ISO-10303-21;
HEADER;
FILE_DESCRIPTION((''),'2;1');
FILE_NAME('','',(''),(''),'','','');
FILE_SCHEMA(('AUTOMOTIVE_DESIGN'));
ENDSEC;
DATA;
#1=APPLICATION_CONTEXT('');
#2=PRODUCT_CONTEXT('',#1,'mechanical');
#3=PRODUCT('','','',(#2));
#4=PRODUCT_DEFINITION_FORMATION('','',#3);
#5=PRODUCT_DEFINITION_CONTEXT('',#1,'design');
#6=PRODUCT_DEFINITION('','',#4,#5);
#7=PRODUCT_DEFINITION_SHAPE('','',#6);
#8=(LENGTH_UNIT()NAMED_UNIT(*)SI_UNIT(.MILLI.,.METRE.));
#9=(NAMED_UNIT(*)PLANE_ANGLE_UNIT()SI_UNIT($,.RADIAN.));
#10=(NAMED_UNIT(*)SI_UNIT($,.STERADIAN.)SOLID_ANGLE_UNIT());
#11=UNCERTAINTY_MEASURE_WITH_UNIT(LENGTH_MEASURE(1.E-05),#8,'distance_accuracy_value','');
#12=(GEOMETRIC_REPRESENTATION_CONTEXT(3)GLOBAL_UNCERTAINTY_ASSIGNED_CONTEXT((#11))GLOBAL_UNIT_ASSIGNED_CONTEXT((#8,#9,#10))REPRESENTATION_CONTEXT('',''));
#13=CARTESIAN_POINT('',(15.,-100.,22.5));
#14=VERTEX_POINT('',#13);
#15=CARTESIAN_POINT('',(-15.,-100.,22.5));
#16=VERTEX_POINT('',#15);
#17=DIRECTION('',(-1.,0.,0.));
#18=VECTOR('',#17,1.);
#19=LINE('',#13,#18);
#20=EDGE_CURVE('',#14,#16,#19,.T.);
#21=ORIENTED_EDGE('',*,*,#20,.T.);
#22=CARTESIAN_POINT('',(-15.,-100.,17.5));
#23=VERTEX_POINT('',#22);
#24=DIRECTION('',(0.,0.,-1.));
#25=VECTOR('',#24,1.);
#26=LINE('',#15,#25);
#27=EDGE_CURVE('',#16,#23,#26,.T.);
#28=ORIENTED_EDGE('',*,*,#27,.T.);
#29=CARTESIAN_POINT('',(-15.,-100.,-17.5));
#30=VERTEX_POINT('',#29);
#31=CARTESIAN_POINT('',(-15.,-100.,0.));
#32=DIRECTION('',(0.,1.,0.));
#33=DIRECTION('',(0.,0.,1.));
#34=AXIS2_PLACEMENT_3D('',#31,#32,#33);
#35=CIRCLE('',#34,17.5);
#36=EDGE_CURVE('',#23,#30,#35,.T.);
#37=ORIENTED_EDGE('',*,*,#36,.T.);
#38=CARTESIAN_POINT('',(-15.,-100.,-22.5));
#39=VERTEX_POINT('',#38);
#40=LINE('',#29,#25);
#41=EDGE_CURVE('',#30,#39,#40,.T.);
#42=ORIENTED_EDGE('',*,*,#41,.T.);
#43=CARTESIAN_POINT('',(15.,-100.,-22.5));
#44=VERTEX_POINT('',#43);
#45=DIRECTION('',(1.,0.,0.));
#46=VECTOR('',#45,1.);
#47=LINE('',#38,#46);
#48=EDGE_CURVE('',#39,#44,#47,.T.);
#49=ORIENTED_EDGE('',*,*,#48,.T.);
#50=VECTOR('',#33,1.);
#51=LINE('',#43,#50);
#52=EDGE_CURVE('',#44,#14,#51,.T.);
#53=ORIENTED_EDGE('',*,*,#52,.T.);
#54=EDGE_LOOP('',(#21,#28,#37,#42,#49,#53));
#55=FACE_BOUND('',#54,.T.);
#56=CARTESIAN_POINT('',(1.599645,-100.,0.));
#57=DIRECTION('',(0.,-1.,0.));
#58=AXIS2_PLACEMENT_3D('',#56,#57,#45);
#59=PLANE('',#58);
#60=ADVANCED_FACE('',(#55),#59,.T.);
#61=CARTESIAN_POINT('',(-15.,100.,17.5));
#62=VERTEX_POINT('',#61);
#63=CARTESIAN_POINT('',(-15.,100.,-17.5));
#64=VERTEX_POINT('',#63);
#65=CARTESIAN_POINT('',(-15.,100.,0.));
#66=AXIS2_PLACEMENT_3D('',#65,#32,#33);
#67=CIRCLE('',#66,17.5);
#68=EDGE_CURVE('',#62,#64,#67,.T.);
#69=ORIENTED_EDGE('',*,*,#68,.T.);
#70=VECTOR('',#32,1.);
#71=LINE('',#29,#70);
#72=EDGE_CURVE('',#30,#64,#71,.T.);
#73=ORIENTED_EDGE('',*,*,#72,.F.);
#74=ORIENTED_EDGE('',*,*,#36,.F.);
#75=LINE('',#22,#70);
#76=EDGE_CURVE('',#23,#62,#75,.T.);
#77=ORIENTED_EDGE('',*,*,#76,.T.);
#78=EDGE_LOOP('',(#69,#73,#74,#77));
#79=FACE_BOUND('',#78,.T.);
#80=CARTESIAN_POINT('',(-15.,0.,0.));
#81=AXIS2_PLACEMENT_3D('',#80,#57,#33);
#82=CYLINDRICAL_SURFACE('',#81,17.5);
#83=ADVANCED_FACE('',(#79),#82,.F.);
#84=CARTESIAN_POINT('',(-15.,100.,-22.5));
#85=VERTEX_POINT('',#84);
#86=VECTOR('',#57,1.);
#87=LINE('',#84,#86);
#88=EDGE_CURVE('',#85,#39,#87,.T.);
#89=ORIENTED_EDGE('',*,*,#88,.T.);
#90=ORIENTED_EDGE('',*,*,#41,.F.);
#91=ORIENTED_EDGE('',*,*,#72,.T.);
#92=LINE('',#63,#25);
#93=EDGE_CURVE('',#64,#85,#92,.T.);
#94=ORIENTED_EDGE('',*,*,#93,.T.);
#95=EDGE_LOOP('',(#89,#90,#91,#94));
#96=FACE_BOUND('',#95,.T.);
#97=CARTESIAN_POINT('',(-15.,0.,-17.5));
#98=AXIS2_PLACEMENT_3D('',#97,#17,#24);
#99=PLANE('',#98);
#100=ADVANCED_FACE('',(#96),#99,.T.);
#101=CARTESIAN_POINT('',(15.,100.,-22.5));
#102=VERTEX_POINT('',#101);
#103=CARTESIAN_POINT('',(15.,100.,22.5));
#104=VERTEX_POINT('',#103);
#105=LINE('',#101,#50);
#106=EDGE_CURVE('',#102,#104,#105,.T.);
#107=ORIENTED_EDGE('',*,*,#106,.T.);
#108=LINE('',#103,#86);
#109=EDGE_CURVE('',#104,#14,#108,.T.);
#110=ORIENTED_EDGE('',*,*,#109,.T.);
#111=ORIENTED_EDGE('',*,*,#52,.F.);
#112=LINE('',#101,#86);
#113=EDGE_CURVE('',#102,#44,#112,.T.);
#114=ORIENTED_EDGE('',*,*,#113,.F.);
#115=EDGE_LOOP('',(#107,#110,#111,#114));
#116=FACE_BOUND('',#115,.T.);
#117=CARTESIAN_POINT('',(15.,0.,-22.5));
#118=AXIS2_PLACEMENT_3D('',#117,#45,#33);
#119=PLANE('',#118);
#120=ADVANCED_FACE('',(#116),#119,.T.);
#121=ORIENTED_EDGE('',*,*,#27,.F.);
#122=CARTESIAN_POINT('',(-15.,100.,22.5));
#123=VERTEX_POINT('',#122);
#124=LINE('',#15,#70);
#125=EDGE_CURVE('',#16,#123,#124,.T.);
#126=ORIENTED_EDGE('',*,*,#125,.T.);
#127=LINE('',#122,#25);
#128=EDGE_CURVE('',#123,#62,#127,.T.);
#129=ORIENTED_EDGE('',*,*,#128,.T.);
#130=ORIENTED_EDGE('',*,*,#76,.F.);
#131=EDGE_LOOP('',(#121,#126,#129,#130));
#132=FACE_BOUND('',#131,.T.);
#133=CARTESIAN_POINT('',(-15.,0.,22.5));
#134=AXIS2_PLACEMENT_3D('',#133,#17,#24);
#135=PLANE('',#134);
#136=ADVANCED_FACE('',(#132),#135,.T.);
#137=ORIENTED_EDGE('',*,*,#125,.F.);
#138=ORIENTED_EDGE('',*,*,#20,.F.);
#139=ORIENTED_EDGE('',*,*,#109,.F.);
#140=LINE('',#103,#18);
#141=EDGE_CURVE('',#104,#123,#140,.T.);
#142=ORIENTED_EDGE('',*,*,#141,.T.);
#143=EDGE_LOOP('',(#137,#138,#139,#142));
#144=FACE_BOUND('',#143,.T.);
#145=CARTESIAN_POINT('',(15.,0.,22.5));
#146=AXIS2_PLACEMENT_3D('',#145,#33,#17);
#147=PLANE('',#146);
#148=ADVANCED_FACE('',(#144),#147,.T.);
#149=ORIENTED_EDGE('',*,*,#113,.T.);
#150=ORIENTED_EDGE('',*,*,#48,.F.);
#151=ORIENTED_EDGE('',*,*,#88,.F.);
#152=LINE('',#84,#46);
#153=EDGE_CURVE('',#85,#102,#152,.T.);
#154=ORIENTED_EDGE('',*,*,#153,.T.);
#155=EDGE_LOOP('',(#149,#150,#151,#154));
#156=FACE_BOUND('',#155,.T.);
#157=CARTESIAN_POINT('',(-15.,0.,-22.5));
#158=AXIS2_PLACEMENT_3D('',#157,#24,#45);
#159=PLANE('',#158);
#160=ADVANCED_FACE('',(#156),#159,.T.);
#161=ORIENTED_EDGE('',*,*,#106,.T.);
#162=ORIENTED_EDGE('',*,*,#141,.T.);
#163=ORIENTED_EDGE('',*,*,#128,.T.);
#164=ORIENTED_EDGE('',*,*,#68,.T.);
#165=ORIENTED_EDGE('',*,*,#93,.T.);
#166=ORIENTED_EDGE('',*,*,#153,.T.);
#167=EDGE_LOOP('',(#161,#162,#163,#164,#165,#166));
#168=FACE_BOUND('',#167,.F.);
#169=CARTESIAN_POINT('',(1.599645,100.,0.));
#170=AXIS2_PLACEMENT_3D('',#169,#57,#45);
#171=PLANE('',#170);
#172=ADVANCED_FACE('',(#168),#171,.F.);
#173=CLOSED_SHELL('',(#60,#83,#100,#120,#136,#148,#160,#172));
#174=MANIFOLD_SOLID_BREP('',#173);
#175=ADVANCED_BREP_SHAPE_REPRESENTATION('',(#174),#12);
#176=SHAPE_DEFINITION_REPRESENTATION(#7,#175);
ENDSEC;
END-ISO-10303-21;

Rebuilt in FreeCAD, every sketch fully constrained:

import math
import FreeCAD as App
import Part
import Sketcher
from FreeCAD import Vector

doc = App.newDocument("Part")
body = doc.addObject("PartDesign::Body", "Body")

sketch1 = doc.addObject("Sketcher::SketchObject", "Sketch")
body.addObject(sketch1)
sketch1.AttachmentSupport = (doc.XZ_Plane, [""])
sketch1.MapMode = "FlatFace"
sketch1.addGeometry(Part.LineSegment(Vector(-15, -18, 0), Vector(-15, -22, 0)), False)
sketch1.addGeometry(Part.LineSegment(Vector(-15, -22, 0), Vector(15, -22, 0)), False)
sketch1.addGeometry(Part.LineSegment(Vector(15, -22, 0), Vector(15, 22, 0)), False)
sketch1.addGeometry(Part.LineSegment(Vector(15, 22, 0), Vector(-15, 22, 0)), False)
sketch1.addGeometry(Part.LineSegment(Vector(-15, 22, 0), Vector(-15, 18, 0)), False)
sketch1.addGeometry(Part.ArcOfCircle(Part.Circle(Vector(-15, 0, 0), Vector(0, 0, 1), 18), math.radians(-90), math.radians(90)), False)
sketch1.addConstraint(Sketcher.Constraint("Coincident", 0, 2, 1, 1))
sketch1.addConstraint(Sketcher.Constraint("Coincident", 1, 2, 2, 1))
sketch1.addConstraint(Sketcher.Constraint("Coincident", 2, 2, 3, 1))
sketch1.addConstraint(Sketcher.Constraint("Coincident", 3, 2, 4, 1))
sketch1.addConstraint(Sketcher.Constraint("Coincident", 4, 2, 5, 2))
sketch1.addConstraint(Sketcher.Constraint("Coincident", 5, 1, 0, 1))
sketch1.addConstraint(Sketcher.Constraint("Vertical", 0))
sketch1.addConstraint(Sketcher.Constraint("Horizontal", 1))
sketch1.addConstraint(Sketcher.Constraint("Vertical", 2))
sketch1.addConstraint(Sketcher.Constraint("Horizontal", 3))
sketch1.addConstraint(Sketcher.Constraint("Vertical", 4))
sketch1.addConstraint(Sketcher.Constraint("Symmetric", 0, 2, 2, 2, -1, 1))
sketch1.addConstraint(Sketcher.Constraint("Symmetric", 4, 2, 5, 1, -1))
sketch1.addConstraint(Sketcher.Constraint("Vertical", 5, 3, 0, 2))
sketch1.addConstraint(Sketcher.Constraint("Radius", 5, 17.5))
sketch1.addConstraint(Sketcher.Constraint("DistanceX", 1, 1, 1, 2, 30.0))
sketch1.addConstraint(Sketcher.Constraint("DistanceY", 0, 2, 0, 1, 5.0))
pad1 = doc.addObject("PartDesign::Pad", "Pad")
body.addObject(pad1)
pad1.Profile = sketch1
pad1.Length = 200
pad1.Midplane = True

doc.recompute()
